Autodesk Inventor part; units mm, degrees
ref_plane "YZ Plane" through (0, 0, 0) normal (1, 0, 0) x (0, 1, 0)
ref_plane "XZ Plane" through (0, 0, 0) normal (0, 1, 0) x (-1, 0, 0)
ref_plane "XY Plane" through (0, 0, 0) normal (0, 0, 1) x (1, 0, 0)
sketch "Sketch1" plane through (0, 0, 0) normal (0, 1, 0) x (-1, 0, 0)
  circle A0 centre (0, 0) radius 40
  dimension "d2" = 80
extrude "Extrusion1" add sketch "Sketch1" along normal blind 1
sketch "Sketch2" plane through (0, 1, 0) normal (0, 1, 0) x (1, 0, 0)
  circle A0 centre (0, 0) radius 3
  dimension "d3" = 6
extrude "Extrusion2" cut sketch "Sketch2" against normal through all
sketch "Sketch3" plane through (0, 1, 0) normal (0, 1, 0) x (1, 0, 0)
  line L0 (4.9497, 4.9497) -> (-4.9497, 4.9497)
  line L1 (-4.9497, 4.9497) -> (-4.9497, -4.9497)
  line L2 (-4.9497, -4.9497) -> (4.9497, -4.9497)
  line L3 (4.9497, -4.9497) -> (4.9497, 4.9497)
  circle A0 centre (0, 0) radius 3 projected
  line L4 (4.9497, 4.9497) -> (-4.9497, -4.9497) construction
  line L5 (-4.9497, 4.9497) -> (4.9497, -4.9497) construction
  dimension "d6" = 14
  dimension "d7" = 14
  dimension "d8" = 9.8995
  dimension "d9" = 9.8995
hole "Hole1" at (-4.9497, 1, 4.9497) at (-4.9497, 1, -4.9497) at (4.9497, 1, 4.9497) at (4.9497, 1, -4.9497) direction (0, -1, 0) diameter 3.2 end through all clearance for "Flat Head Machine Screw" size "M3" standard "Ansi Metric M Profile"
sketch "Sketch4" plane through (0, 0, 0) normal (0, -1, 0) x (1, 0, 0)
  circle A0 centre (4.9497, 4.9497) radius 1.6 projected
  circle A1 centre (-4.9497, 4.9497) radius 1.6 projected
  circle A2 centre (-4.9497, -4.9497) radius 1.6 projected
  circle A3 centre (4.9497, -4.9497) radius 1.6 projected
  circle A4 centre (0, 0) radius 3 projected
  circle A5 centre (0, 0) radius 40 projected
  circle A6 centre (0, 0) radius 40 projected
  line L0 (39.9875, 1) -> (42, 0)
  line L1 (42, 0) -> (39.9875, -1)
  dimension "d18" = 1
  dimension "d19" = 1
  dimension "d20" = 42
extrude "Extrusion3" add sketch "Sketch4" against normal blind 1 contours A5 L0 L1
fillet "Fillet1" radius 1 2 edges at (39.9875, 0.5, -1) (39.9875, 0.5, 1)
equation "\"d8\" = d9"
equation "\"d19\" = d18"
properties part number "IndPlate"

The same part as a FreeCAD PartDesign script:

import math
import FreeCAD as App
import Part
import Sketcher

V = App.Vector


def edges_at(feature, points):
    """Names of the edges that pass closest to the given points."""
    edges = feature.Shape.Edges
    near = lambda p: min(range(len(edges)), key=lambda i: edges[i].distToShape(Part.Vertex(*p))[0])
    return sorted({f"Edge{near(p) + 1}" for p in points})

doc = App.newDocument("Part")
body = doc.addObject("PartDesign::Body", "Body")

# Sketch on XZ plane
sketch1 = body.newObject("Sketcher::SketchObject", "Sketch")
sketch1.AttachmentSupport = (doc.getObject("XZ_Plane"), [""])
sketch1.MapMode = "FlatFace"
sketch1.addGeometry(Part.Circle(V(0, 0, 0), V(0, 0, 1), 40), False)
sketch1.addConstraint([
    Sketcher.Constraint("Coincident", 0, 3, -1, 1),
    Sketcher.Constraint("Diameter", 0, 80.0),
])
pad1 = body.newObject("PartDesign::Pad", "Pad")
pad1.Profile = sketch1
pad1.Length = 1
pad1.Reversed = True

# Sketch on XZ plane
sketch2 = body.newObject("Sketcher::SketchObject", "Sketch001")
sketch2.AttachmentSupport = (doc.getObject("XZ_Plane"), [""])
sketch2.MapMode = "FlatFace"
sketch2.AttachmentOffset = App.Placement(V(0, 0, -1), App.Rotation())
sketch2.addGeometry(Part.Circle(V(0, 0, 0), V(0, 0, 1), 3), False)
sketch2.addConstraint([
    Sketcher.Constraint("Coincident", 0, 3, -1, 1),
    Sketcher.Constraint("Diameter", 0, 6.0),
])
pocket1 = body.newObject("PartDesign::Pocket", "Pocket")
pocket1.Profile = sketch2
pocket1.Type = "ThroughAll"
pocket1.Reversed = True

# Sketch on XZ plane
sketch3 = body.newObject("Sketcher::SketchObject", "Sketch002")
sketch3.AttachmentSupport = (doc.getObject("XZ_Plane"), [""])
sketch3.MapMode = "FlatFace"
sketch3.AttachmentOffset = App.Placement(V(0, 0, -1), App.Rotation())
sketch3.addGeometry([
    Part.Circle(V(-4.9497, 4.9497, 0), V(0, 0, 1), 1.6),
    Part.Circle(V(-4.9497, -4.9497, 0), V(0, 0, 1), 1.6),
    Part.Circle(V(4.9497, 4.9497, 0), V(0, 0, 1), 1.6),
    Part.Circle(V(4.9497, -4.9497, 0), V(0, 0, 1), 1.6),
], False)
sketch3.addConstraint([
    Sketcher.Constraint("Equal", 0, 1),
    Sketcher.Constraint("Equal", 1, 2),
    Sketcher.Constraint("Equal", 2, 3),
    Sketcher.Constraint("Symmetric", 1, 3, 2, 3, -1, 1),
    Sketcher.Constraint("Symmetric", 0, 3, 3, 3, -1, 1),
    Sketcher.Constraint("Symmetric", 0, 3, 2, 3, -2),
    Sketcher.Constraint("Diameter", 0, 3.2),
    Sketcher.Constraint("DistanceX", 0, 3, -1, 1, 4.9497),
    Sketcher.Constraint("DistanceY", -1, 1, 0, 3, 4.9497),
])
doc.recompute()
hole = body.newObject("PartDesign::Hole", "Hole")
hole.Profile = sketch3
hole.ThreadType = "None"
hole.Diameter = 3.2
hole.DepthType = "ThroughAll"
hole.Reversed = True

# Sketch on XZ plane
sketch4 = body.newObject("Sketcher::SketchObject", "Sketch003")
sketch4.AttachmentSupport = (doc.getObject("XZ_Plane"), [""])
sketch4.MapMode = "FlatFace"
sketch4.addGeometry([
    Part.ArcOfCircle(Part.Circle(V(0, 0, 0), V(0, 0, 1), 40), math.radians(-1.432544), math.radians(1.432544)),
    Part.LineSegment(V(39.9875, -1, 0), V(42, 0, 0)),
    Part.LineSegment(V(42, 0, 0), V(39.9875, 1, 0)),
], False)
sketch4.addConstraint([
    Sketcher.Constraint("Coincident", 0, 1, 1, 1),
    Sketcher.Constraint("Coincident", 1, 2, 2, 1),
    Sketcher.Constraint("Coincident", 2, 2, 0, 2),
    Sketcher.Constraint("Coincident", 0, 3, -1, 1),
    Sketcher.Constraint("PointOnObject", 1, 2, -1),
    Sketcher.Constraint("Vertical", 0, 1, 2, 2),
    Sketcher.Constraint("DistanceY", 0, 1, -1, 1, 1.0),
    Sketcher.Constraint("DistanceX", -1, 1, 1, 2, 42.0),
    Sketcher.Constraint("Radius", 0, 40.0),
])
pad2 = body.newObject("PartDesign::Pad", "Pad001")
pad2.Profile = sketch4
pad2.Length = 1
pad2.Reversed = True
doc.recompute()

fillet = body.newObject("PartDesign::Fillet", "Fillet")
fillet.Base = (pad2, edges_at(pad2, [(39.987, 0.5, -1), (39.987, 0.5, 1)]))
fillet.Radius = 1

doc.recompute()
